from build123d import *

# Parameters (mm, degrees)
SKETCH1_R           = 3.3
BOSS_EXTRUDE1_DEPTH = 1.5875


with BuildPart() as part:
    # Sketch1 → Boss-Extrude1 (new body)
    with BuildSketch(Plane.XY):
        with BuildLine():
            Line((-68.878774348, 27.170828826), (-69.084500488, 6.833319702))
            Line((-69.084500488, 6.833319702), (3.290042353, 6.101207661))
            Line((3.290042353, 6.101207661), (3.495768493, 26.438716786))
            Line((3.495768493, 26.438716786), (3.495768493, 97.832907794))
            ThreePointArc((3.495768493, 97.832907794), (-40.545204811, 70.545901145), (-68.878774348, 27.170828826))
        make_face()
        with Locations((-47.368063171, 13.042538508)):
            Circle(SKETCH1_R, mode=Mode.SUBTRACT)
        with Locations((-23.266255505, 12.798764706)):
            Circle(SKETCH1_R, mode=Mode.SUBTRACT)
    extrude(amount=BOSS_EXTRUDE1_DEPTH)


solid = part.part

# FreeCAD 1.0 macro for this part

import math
import FreeCAD as App
import Part
import Sketcher

V = App.Vector
Q = App.Units.Quantity

doc = App.newDocument("Part")
params = doc.addObject("Spreadsheet::Sheet", "Params")
for row, (alias, value) in enumerate([
    ("sketch1_radius", "4.7 in"),
    ("pad1_length", "0.0625 in"),
], start=1):
    params.set(f"A{row}", alias)
    params.set(f"B{row}", "=" + value)
    params.setAlias(f"B{row}", alias)

body = doc.addObject("PartDesign::Body", "Body")

# Sketch on XY plane
sketch1 = body.newObject("Sketcher::SketchObject", "Sketch")
sketch1.AttachmentSupport = (doc.getObject("XY_Plane"), [""])
sketch1.MapMode = "FlatFace"
sketch1.addGeometry(Part.LineSegment(V(-68.878774, 27.170829, 0), V(-69.0845, 6.83332, 0)), False)
sketch1.addGeometry(Part.LineSegment(V(-69.0845, 6.83332, 0), V(3.290042, 6.101208, 0)), False)
sketch1.addGeometry(Part.LineSegment(V(3.290042, 6.101208, 0), V(3.495768, 26.438717, 0)), False)
sketch1.addGeometry(Part.LineSegment(V(3.495768, 26.438717, 0), V(3.495768, 97.832908, 0)), False)
sketch1.addGeometry(Part.ArcOfCircle(Part.Circle(V(42.852599, -14.873012, 0), V(0, 0, 1), 119.38), math.radians(109.249167), math.radians(159.378985)), False)
sketch1.addGeometry(Part.Circle(V(-23.266256, 12.798765, 0), V(0, 0, 1), 3.3), False)
sketch1.addGeometry(Part.Circle(V(-47.368063, 13.042539, 0), V(0, 0, 1), 3.3), False)
sketch1.addConstraint(Sketcher.Constraint("Coincident", 0, 2, 1, 1))
sketch1.addConstraint(Sketcher.Constraint("Coincident", 1, 2, 2, 1))
sketch1.addConstraint(Sketcher.Constraint("Coincident", 2, 2, 3, 1))
sketch1.addConstraint(Sketcher.Constraint("Coincident", 3, 2, 4, 1))
sketch1.addConstraint(Sketcher.Constraint("Coincident", 4, 2, 0, 1))
sketch1.addConstraint(Sketcher.Constraint("Vertical", 3))
sketch1.addConstraint(Sketcher.Constraint("Equal", 5, 6))
sketch1.addConstraint(Sketcher.Constraint("Perpendicular", 0, 1))
sketch1.addConstraint(Sketcher.Constraint("Perpendicular", 1, 2))
sketch1.addConstraint(Sketcher.Constraint("Equal", 0, 2))
sketch1.addConstraint(Sketcher.Constraint("Radius", 4, Q("4.7 in")))
sketch1.addConstraint(Sketcher.Constraint("Diameter", 5, 6.6))
sketch1.addConstraint(Sketcher.Constraint("DistanceY", 3, 1, 3, 2, 71.394191))
sketch1.addConstraint(Sketcher.Constraint("DistanceX", -1, 1, 4, 3, 42.852599))
sketch1.addConstraint(Sketcher.Constraint("DistanceX", 0, 2, -1, 1, 69.0845))
sketch1.addConstraint(Sketcher.Constraint("DistanceY", 1, 2, 3, 2, 91.7317))
sketch1.addConstraint(Sketcher.Constraint("DistanceY", 4, 3, -1, 1, 14.873012))
sketch1.addConstraint(Sketcher.Constraint("DistanceY", -1, 1, 6, 3, 13.042539))
sketch1.addConstraint(Sketcher.Constraint("DistanceY", -1, 1, 0, 2, 6.83332))
sketch1.addConstraint(Sketcher.Constraint("DistanceX", 6, 3, 2, 2, 50.863832))
sketch1.addConstraint(Sketcher.Constraint("DistanceX", 4, 2, 5, 3, 45.612519))
sketch1.addConstraint(Sketcher.Constraint("DistanceY", -1, 1, 5, 3, 12.798765))
sketch1.setExpression("Constraints[10]", "Params.sketch1_radius")
pad1 = body.newObject("PartDesign::Pad", "Pad")
pad1.Profile = sketch1
pad1.setExpression("Length", "Params.pad1_length")

doc.recompute()
